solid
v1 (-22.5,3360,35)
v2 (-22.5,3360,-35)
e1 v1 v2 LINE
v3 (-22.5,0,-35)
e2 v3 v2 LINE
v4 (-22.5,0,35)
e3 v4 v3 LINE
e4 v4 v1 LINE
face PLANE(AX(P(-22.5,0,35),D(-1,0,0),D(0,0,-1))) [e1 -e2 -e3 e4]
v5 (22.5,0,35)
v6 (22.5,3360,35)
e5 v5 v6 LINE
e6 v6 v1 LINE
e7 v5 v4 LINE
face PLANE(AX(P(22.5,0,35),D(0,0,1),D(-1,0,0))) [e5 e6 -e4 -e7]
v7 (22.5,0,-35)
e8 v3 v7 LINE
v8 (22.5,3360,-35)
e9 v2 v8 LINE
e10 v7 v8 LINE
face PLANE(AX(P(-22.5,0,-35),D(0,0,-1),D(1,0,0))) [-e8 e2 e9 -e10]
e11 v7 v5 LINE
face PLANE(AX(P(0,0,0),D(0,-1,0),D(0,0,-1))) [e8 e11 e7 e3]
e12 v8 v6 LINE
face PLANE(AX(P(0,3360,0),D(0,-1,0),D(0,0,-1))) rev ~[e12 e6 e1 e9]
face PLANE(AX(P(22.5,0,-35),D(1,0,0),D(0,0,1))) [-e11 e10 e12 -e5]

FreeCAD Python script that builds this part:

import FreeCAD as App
import Part
import Sketcher

V = App.Vector
Q = App.Units.Quantity


def add_polygon(sketch, points):
    """Adds a closed chain of lines whose ends are joined by coincident constraints."""
    first, n = sketch.GeometryCount, len(points)
    for a, b in zip(points, points[1:] + points[:1]):
        sketch.addGeometry(Part.LineSegment(App.Vector(*a, 0), App.Vector(*b, 0)), False)
    for i in range(n):
        sketch.addConstraint(Sketcher.Constraint("Coincident", first + i, 2, first + (i + 1) % n, 1))

doc = App.newDocument("Part")
params = doc.addObject("Spreadsheet::Sheet", "Params")
for row, (alias, value) in enumerate([
    ("sketch1_width", "45 mm"),
    ("sketch1_height", "70 mm"),
    ("pad1_length", "3360 mm"),
], start=1):
    params.set(f"A{row}", alias)
    params.set(f"B{row}", "=" + value)
    params.setAlias(f"B{row}", alias)

body = doc.addObject("PartDesign::Body", "Body")

# Sketch on XZ plane
sketch1 = body.newObject("Sketcher::SketchObject", "Sketch")
sketch1.AttachmentSupport = (doc.getObject("XZ_Plane"), [""])
sketch1.MapMode = "FlatFace"
add_polygon(sketch1, [(-22, 35), (-22, -35), (22, -35), (22, 35)])  # lines 0-3
sketch1.addConstraint([
    Sketcher.Constraint("Vertical", 0),
    Sketcher.Constraint("Horizontal", 1),
    Sketcher.Constraint("Vertical", 2),
    Sketcher.Constraint("Horizontal", 3),
    Sketcher.Constraint("Symmetric", 0, 2, 2, 2, -1, 1),
    Sketcher.Constraint("DistanceX", 1, 1, 1, 2, Q("45 mm")),
    Sketcher.Constraint("DistanceY", 0, 2, 0, 1, Q("70 mm")),
])
sketch1.setExpression("Constraints[9]", "Params.sketch1_width")
sketch1.setExpression("Constraints[10]", "Params.sketch1_height")
pad1 = body.newObject("PartDesign::Pad", "Pad")
pad1.Profile = sketch1
pad1.setExpression("Length", "Params.pad1_length")
pad1.Reversed = True

doc.recompute()
